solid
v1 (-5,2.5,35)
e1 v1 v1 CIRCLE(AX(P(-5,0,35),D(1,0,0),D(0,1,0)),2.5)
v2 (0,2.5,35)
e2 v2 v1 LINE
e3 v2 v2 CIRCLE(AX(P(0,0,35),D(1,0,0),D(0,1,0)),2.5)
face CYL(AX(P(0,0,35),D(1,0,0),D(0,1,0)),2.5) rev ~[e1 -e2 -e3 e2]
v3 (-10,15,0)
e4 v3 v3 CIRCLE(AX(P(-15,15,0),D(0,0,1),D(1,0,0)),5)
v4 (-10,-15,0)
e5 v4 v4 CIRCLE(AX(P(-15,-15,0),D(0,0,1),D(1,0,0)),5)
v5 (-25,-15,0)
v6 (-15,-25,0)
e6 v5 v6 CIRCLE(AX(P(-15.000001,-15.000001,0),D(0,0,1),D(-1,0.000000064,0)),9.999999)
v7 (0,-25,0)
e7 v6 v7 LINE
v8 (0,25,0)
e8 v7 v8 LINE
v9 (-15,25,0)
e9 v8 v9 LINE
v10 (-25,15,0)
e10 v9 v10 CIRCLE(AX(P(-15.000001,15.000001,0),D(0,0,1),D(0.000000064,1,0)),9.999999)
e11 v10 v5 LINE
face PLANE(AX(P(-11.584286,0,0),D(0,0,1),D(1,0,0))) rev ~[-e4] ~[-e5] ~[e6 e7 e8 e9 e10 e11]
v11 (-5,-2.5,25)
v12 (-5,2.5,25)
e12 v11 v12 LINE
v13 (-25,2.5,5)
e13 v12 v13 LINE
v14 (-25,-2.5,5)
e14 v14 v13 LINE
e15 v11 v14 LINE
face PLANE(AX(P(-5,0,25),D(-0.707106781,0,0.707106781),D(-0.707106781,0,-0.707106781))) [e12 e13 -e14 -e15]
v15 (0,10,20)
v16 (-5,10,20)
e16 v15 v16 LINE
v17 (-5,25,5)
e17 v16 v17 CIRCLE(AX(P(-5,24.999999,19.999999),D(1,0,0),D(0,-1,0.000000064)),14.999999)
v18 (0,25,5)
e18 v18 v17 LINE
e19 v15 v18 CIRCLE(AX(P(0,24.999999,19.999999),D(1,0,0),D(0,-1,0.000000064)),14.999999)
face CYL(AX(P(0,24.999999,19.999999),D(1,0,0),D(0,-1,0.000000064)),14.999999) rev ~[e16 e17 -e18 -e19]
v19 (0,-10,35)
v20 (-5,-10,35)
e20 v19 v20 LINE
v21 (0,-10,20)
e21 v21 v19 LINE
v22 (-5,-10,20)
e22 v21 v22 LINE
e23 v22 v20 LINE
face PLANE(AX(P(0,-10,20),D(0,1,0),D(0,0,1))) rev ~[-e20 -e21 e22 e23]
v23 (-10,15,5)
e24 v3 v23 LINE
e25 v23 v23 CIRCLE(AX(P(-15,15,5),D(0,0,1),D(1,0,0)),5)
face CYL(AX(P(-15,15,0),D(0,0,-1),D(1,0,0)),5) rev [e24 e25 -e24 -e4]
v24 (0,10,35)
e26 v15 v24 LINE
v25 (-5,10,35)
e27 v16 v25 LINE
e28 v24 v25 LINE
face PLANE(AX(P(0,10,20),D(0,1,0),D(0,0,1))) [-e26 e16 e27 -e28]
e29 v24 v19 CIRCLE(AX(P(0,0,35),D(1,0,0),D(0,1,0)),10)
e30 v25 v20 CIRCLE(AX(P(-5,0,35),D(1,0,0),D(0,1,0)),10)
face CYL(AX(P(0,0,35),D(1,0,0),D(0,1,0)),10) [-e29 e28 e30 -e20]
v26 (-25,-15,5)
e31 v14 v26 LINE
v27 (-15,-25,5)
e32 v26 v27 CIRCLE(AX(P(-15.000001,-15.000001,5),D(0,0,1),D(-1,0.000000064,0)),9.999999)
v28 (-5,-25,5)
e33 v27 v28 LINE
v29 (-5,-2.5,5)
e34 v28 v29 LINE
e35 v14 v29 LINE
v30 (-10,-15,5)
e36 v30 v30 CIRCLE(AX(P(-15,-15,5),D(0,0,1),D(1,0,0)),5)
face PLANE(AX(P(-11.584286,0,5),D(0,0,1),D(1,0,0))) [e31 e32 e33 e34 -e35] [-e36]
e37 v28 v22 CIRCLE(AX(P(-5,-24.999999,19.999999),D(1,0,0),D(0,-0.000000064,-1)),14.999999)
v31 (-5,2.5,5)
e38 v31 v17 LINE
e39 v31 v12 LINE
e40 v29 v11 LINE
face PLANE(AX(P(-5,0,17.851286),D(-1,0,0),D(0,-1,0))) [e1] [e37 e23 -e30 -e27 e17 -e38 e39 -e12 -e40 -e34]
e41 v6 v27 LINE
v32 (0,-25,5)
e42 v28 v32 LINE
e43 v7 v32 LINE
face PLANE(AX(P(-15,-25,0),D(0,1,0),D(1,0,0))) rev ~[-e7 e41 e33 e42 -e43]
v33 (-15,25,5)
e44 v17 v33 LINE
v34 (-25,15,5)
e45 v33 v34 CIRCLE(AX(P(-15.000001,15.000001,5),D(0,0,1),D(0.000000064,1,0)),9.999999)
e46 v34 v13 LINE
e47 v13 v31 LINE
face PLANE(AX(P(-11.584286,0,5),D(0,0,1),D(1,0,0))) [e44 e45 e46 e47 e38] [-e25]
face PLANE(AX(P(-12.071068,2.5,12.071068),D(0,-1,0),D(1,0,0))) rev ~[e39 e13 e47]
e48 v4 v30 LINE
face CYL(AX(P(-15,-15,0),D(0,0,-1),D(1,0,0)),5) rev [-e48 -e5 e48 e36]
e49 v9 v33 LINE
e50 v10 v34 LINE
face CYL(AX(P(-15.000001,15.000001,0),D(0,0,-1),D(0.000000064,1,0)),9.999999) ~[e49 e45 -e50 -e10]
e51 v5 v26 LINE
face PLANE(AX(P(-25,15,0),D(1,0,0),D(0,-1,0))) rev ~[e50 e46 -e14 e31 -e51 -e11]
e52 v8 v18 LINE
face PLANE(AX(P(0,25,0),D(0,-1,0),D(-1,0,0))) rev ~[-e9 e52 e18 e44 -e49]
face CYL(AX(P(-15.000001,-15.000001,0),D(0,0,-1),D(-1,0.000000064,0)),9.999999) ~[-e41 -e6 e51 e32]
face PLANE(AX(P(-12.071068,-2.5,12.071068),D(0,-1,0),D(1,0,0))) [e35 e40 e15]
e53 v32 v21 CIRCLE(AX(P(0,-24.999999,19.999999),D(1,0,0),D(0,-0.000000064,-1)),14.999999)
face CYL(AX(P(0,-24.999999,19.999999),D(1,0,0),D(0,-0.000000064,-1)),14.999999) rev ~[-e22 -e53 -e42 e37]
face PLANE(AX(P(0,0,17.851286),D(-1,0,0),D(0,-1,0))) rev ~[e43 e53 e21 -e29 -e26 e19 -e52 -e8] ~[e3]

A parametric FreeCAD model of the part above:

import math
import FreeCAD as App
import Part
import Sketcher


def add_polygon(sketch, points):
    """Adds a closed chain of lines whose ends are joined by coincident constraints."""
    first, n = sketch.GeometryCount, len(points)
    for a, b in zip(points, points[1:] + points[:1]):
        sketch.addGeometry(Part.LineSegment(App.Vector(*a, 0), App.Vector(*b, 0)), False)
    for i in range(n):
        sketch.addConstraint(Sketcher.Constraint("Coincident", first + i, 2, first + (i + 1) % n, 1))

doc = App.newDocument("Part")
body = doc.addObject("PartDesign::Body", "Body")

sketch1 = doc.addObject("Sketcher::SketchObject", "Sketch")
body.addObject(sketch1)
sketch1.AttachmentSupport = (doc.XY_Plane, [""])
sketch1.MapMode = "FlatFace"
sketch1.addGeometry(Part.LineSegment(App.Vector(0, 25, 0), App.Vector(-15, 25, 0)), False)
sketch1.addGeometry(Part.ArcOfCircle(Part.Circle(App.Vector(-15, 15, 0), App.Vector(0, 0, 1), 10), math.radians(90), math.radians(180)), False)
sketch1.addGeometry(Part.LineSegment(App.Vector(-25, 15, 0), App.Vector(-25, -15, 0)), False)
sketch1.addGeometry(Part.ArcOfCircle(Part.Circle(App.Vector(-15, -15, 0), App.Vector(0, 0, 1), 10), math.radians(180), math.radians(270)), False)
sketch1.addGeometry(Part.LineSegment(App.Vector(-15, -25, 0), App.Vector(0, -25, 0)), False)
sketch1.addGeometry(Part.LineSegment(App.Vector(0, -25, 0), App.Vector(0, 25, 0)), False)
sketch1.addGeometry(Part.Circle(App.Vector(-15, -15, 0), App.Vector(0, 0, 1), 5), False)
sketch1.addGeometry(Part.Circle(App.Vector(-15, 15, 0), App.Vector(0, 0, 1), 5), False)
sketch1.addConstraint(Sketcher.Constraint("Tangent", 0, 2, 1, 1))
sketch1.addConstraint(Sketcher.Constraint("Tangent", 1, 2, 2, 1))
sketch1.addConstraint(Sketcher.Constraint("Tangent", 2, 2, 3, 1))
sketch1.addConstraint(Sketcher.Constraint("Tangent", 3, 2, 4, 1))
sketch1.addConstraint(Sketcher.Constraint("Coincident", 4, 2, 5, 1))
sketch1.addConstraint(Sketcher.Constraint("Coincident", 5, 2, 0, 1))
sketch1.addConstraint(Sketcher.Constraint("Horizontal", 0))
sketch1.addConstraint(Sketcher.Constraint("Vertical", 2))
sketch1.addConstraint(Sketcher.Constraint("Horizontal", 4))
sketch1.addConstraint(Sketcher.Constraint("Vertical", 5))
sketch1.addConstraint(Sketcher.Constraint("Coincident", 6, 3, 3, 3))
sketch1.addConstraint(Sketcher.Constraint("Coincident", 7, 3, 1, 3))
sketch1.addConstraint(Sketcher.Constraint("Equal", 1, 3))
sketch1.addConstraint(Sketcher.Constraint("Equal", 6, 7))
sketch1.addConstraint(Sketcher.Constraint("Symmetric", 4, 2, 5, 2, -1, 1))
sketch1.addConstraint(Sketcher.Constraint("Diameter", 6, 10.0))
sketch1.addConstraint(Sketcher.Constraint("Radius", 1, 9.999999))
sketch1.addConstraint(Sketcher.Constraint("DistanceX", 0, 2, 0, 1, 15.0))
sketch1.addConstraint(Sketcher.Constraint("DistanceY", 2, 2, 2, 1, 30.0))
pad1 = doc.addObject("PartDesign::Pad", "Pad")
body.addObject(pad1)
pad1.Profile = sketch1
pad1.Length = 5

sketch2 = doc.addObject("Sketcher::SketchObject", "Sketch001")
body.addObject(sketch2)
sketch2.AttachmentSupport = (doc.YZ_Plane, [""])
sketch2.MapMode = "FlatFace"
sketch2.addGeometry(Part.ArcOfCircle(Part.Circle(App.Vector(-25, 20, 0), App.Vector(0, 0, 1), 15), math.radians(-90), math.radians(0)), False)
sketch2.addGeometry(Part.LineSegment(App.Vector(-25, 5, 0), App.Vector(25, 5, 0)), False)
sketch2.addGeometry(Part.ArcOfCircle(Part.Circle(App.Vector(25, 20, 0), App.Vector(0, 0, 1), 15), math.radians(180), math.radians(270)), False)
sketch2.addGeometry(Part.LineSegment(App.Vector(10, 20, 0), App.Vector(10, 35, 0)), False)
sketch2.addGeometry(Part.ArcOfCircle(Part.Circle(App.Vector(0, 35, 0), App.Vector(0, 0, 1), 10), math.radians(0), math.radians(180)), False)
sketch2.addGeometry(Part.LineSegment(App.Vector(-10, 35, 0), App.Vector(-10, 20, 0)), False)
sketch2.addGeometry(Part.Circle(App.Vector(0, 35, 0), App.Vector(0, 0, 1), 2.5), False)
sketch2.addConstraint(Sketcher.Constraint("Tangent", 0, 1, 1, 1))
sketch2.addConstraint(Sketcher.Constraint("Tangent", 1, 2, 2, 2))
sketch2.addConstraint(Sketcher.Constraint("Tangent", 2, 1, 3, 1))
sketch2.addConstraint(Sketcher.Constraint("Tangent", 3, 2, 4, 1))
sketch2.addConstraint(Sketcher.Constraint("Tangent", 4, 2, 5, 1))
sketch2.addConstraint(Sketcher.Constraint("Tangent", 5, 2, 0, 2))
sketch2.addConstraint(Sketcher.Constraint("Horizontal", 1))
sketch2.addConstraint(Sketcher.Constraint("Vertical", 3))
sketch2.addConstraint(Sketcher.Constraint("Vertical", 5))
sketch2.addConstraint(Sketcher.Constraint("Coincident", 6, 3, 4, 3))
sketch2.addConstraint(Sketcher.Constraint("Equal", 0, 2))
sketch2.addConstraint(Sketcher.Constraint("PointOnObject", 4, 3, -2))
sketch2.addConstraint(Sketcher.Constraint("Diameter", 6, 5.0))
sketch2.addConstraint(Sketcher.Constraint("Radius", 0, 14.999999))
sketch2.addConstraint(Sketcher.Constraint("Radius", 4, 10.0))
sketch2.addConstraint(Sketcher.Constraint("DistanceY", 3, 1, 3, 2, 15.0))
sketch2.addConstraint(Sketcher.Constraint("DistanceY", -1, 1, 0, 3, 19.999999))
pad2 = doc.addObject("PartDesign::Pad", "Pad001")
body.addObject(pad2)
pad2.Profile = sketch2
pad2.Length = 5
pad2.Reversed = True

sketch3 = doc.addObject("Sketcher::SketchObject", "Sketch002")
body.addObject(sketch3)
sketch3.AttachmentSupport = (doc.XZ_Plane, [""])
sketch3.MapMode = "FlatFace"
add_polygon(sketch3, [(-25, 5), (-5, 5), (-5, 25)])
sketch3.addConstraint(Sketcher.Constraint("Horizontal", 0))
sketch3.addConstraint(Sketcher.Constraint("Vertical", 1))
sketch3.addConstraint(Sketcher.Constraint("Equal", 0, 1))
sketch3.addConstraint(Sketcher.Constraint("DistanceX", 0, 1, 0, 2, 20.0))
sketch3.addConstraint(Sketcher.Constraint("DistanceX", 0, 2, -1, 1, 5.0))
sketch3.addConstraint(Sketcher.Constraint("DistanceY", -1, 1, 0, 2, 5.0))
pad3 = doc.addObject("PartDesign::Pad", "Pad002")
body.addObject(pad3)
pad3.Profile = sketch3
pad3.Length = 5
pad3.Midplane = True

doc.recompute()
